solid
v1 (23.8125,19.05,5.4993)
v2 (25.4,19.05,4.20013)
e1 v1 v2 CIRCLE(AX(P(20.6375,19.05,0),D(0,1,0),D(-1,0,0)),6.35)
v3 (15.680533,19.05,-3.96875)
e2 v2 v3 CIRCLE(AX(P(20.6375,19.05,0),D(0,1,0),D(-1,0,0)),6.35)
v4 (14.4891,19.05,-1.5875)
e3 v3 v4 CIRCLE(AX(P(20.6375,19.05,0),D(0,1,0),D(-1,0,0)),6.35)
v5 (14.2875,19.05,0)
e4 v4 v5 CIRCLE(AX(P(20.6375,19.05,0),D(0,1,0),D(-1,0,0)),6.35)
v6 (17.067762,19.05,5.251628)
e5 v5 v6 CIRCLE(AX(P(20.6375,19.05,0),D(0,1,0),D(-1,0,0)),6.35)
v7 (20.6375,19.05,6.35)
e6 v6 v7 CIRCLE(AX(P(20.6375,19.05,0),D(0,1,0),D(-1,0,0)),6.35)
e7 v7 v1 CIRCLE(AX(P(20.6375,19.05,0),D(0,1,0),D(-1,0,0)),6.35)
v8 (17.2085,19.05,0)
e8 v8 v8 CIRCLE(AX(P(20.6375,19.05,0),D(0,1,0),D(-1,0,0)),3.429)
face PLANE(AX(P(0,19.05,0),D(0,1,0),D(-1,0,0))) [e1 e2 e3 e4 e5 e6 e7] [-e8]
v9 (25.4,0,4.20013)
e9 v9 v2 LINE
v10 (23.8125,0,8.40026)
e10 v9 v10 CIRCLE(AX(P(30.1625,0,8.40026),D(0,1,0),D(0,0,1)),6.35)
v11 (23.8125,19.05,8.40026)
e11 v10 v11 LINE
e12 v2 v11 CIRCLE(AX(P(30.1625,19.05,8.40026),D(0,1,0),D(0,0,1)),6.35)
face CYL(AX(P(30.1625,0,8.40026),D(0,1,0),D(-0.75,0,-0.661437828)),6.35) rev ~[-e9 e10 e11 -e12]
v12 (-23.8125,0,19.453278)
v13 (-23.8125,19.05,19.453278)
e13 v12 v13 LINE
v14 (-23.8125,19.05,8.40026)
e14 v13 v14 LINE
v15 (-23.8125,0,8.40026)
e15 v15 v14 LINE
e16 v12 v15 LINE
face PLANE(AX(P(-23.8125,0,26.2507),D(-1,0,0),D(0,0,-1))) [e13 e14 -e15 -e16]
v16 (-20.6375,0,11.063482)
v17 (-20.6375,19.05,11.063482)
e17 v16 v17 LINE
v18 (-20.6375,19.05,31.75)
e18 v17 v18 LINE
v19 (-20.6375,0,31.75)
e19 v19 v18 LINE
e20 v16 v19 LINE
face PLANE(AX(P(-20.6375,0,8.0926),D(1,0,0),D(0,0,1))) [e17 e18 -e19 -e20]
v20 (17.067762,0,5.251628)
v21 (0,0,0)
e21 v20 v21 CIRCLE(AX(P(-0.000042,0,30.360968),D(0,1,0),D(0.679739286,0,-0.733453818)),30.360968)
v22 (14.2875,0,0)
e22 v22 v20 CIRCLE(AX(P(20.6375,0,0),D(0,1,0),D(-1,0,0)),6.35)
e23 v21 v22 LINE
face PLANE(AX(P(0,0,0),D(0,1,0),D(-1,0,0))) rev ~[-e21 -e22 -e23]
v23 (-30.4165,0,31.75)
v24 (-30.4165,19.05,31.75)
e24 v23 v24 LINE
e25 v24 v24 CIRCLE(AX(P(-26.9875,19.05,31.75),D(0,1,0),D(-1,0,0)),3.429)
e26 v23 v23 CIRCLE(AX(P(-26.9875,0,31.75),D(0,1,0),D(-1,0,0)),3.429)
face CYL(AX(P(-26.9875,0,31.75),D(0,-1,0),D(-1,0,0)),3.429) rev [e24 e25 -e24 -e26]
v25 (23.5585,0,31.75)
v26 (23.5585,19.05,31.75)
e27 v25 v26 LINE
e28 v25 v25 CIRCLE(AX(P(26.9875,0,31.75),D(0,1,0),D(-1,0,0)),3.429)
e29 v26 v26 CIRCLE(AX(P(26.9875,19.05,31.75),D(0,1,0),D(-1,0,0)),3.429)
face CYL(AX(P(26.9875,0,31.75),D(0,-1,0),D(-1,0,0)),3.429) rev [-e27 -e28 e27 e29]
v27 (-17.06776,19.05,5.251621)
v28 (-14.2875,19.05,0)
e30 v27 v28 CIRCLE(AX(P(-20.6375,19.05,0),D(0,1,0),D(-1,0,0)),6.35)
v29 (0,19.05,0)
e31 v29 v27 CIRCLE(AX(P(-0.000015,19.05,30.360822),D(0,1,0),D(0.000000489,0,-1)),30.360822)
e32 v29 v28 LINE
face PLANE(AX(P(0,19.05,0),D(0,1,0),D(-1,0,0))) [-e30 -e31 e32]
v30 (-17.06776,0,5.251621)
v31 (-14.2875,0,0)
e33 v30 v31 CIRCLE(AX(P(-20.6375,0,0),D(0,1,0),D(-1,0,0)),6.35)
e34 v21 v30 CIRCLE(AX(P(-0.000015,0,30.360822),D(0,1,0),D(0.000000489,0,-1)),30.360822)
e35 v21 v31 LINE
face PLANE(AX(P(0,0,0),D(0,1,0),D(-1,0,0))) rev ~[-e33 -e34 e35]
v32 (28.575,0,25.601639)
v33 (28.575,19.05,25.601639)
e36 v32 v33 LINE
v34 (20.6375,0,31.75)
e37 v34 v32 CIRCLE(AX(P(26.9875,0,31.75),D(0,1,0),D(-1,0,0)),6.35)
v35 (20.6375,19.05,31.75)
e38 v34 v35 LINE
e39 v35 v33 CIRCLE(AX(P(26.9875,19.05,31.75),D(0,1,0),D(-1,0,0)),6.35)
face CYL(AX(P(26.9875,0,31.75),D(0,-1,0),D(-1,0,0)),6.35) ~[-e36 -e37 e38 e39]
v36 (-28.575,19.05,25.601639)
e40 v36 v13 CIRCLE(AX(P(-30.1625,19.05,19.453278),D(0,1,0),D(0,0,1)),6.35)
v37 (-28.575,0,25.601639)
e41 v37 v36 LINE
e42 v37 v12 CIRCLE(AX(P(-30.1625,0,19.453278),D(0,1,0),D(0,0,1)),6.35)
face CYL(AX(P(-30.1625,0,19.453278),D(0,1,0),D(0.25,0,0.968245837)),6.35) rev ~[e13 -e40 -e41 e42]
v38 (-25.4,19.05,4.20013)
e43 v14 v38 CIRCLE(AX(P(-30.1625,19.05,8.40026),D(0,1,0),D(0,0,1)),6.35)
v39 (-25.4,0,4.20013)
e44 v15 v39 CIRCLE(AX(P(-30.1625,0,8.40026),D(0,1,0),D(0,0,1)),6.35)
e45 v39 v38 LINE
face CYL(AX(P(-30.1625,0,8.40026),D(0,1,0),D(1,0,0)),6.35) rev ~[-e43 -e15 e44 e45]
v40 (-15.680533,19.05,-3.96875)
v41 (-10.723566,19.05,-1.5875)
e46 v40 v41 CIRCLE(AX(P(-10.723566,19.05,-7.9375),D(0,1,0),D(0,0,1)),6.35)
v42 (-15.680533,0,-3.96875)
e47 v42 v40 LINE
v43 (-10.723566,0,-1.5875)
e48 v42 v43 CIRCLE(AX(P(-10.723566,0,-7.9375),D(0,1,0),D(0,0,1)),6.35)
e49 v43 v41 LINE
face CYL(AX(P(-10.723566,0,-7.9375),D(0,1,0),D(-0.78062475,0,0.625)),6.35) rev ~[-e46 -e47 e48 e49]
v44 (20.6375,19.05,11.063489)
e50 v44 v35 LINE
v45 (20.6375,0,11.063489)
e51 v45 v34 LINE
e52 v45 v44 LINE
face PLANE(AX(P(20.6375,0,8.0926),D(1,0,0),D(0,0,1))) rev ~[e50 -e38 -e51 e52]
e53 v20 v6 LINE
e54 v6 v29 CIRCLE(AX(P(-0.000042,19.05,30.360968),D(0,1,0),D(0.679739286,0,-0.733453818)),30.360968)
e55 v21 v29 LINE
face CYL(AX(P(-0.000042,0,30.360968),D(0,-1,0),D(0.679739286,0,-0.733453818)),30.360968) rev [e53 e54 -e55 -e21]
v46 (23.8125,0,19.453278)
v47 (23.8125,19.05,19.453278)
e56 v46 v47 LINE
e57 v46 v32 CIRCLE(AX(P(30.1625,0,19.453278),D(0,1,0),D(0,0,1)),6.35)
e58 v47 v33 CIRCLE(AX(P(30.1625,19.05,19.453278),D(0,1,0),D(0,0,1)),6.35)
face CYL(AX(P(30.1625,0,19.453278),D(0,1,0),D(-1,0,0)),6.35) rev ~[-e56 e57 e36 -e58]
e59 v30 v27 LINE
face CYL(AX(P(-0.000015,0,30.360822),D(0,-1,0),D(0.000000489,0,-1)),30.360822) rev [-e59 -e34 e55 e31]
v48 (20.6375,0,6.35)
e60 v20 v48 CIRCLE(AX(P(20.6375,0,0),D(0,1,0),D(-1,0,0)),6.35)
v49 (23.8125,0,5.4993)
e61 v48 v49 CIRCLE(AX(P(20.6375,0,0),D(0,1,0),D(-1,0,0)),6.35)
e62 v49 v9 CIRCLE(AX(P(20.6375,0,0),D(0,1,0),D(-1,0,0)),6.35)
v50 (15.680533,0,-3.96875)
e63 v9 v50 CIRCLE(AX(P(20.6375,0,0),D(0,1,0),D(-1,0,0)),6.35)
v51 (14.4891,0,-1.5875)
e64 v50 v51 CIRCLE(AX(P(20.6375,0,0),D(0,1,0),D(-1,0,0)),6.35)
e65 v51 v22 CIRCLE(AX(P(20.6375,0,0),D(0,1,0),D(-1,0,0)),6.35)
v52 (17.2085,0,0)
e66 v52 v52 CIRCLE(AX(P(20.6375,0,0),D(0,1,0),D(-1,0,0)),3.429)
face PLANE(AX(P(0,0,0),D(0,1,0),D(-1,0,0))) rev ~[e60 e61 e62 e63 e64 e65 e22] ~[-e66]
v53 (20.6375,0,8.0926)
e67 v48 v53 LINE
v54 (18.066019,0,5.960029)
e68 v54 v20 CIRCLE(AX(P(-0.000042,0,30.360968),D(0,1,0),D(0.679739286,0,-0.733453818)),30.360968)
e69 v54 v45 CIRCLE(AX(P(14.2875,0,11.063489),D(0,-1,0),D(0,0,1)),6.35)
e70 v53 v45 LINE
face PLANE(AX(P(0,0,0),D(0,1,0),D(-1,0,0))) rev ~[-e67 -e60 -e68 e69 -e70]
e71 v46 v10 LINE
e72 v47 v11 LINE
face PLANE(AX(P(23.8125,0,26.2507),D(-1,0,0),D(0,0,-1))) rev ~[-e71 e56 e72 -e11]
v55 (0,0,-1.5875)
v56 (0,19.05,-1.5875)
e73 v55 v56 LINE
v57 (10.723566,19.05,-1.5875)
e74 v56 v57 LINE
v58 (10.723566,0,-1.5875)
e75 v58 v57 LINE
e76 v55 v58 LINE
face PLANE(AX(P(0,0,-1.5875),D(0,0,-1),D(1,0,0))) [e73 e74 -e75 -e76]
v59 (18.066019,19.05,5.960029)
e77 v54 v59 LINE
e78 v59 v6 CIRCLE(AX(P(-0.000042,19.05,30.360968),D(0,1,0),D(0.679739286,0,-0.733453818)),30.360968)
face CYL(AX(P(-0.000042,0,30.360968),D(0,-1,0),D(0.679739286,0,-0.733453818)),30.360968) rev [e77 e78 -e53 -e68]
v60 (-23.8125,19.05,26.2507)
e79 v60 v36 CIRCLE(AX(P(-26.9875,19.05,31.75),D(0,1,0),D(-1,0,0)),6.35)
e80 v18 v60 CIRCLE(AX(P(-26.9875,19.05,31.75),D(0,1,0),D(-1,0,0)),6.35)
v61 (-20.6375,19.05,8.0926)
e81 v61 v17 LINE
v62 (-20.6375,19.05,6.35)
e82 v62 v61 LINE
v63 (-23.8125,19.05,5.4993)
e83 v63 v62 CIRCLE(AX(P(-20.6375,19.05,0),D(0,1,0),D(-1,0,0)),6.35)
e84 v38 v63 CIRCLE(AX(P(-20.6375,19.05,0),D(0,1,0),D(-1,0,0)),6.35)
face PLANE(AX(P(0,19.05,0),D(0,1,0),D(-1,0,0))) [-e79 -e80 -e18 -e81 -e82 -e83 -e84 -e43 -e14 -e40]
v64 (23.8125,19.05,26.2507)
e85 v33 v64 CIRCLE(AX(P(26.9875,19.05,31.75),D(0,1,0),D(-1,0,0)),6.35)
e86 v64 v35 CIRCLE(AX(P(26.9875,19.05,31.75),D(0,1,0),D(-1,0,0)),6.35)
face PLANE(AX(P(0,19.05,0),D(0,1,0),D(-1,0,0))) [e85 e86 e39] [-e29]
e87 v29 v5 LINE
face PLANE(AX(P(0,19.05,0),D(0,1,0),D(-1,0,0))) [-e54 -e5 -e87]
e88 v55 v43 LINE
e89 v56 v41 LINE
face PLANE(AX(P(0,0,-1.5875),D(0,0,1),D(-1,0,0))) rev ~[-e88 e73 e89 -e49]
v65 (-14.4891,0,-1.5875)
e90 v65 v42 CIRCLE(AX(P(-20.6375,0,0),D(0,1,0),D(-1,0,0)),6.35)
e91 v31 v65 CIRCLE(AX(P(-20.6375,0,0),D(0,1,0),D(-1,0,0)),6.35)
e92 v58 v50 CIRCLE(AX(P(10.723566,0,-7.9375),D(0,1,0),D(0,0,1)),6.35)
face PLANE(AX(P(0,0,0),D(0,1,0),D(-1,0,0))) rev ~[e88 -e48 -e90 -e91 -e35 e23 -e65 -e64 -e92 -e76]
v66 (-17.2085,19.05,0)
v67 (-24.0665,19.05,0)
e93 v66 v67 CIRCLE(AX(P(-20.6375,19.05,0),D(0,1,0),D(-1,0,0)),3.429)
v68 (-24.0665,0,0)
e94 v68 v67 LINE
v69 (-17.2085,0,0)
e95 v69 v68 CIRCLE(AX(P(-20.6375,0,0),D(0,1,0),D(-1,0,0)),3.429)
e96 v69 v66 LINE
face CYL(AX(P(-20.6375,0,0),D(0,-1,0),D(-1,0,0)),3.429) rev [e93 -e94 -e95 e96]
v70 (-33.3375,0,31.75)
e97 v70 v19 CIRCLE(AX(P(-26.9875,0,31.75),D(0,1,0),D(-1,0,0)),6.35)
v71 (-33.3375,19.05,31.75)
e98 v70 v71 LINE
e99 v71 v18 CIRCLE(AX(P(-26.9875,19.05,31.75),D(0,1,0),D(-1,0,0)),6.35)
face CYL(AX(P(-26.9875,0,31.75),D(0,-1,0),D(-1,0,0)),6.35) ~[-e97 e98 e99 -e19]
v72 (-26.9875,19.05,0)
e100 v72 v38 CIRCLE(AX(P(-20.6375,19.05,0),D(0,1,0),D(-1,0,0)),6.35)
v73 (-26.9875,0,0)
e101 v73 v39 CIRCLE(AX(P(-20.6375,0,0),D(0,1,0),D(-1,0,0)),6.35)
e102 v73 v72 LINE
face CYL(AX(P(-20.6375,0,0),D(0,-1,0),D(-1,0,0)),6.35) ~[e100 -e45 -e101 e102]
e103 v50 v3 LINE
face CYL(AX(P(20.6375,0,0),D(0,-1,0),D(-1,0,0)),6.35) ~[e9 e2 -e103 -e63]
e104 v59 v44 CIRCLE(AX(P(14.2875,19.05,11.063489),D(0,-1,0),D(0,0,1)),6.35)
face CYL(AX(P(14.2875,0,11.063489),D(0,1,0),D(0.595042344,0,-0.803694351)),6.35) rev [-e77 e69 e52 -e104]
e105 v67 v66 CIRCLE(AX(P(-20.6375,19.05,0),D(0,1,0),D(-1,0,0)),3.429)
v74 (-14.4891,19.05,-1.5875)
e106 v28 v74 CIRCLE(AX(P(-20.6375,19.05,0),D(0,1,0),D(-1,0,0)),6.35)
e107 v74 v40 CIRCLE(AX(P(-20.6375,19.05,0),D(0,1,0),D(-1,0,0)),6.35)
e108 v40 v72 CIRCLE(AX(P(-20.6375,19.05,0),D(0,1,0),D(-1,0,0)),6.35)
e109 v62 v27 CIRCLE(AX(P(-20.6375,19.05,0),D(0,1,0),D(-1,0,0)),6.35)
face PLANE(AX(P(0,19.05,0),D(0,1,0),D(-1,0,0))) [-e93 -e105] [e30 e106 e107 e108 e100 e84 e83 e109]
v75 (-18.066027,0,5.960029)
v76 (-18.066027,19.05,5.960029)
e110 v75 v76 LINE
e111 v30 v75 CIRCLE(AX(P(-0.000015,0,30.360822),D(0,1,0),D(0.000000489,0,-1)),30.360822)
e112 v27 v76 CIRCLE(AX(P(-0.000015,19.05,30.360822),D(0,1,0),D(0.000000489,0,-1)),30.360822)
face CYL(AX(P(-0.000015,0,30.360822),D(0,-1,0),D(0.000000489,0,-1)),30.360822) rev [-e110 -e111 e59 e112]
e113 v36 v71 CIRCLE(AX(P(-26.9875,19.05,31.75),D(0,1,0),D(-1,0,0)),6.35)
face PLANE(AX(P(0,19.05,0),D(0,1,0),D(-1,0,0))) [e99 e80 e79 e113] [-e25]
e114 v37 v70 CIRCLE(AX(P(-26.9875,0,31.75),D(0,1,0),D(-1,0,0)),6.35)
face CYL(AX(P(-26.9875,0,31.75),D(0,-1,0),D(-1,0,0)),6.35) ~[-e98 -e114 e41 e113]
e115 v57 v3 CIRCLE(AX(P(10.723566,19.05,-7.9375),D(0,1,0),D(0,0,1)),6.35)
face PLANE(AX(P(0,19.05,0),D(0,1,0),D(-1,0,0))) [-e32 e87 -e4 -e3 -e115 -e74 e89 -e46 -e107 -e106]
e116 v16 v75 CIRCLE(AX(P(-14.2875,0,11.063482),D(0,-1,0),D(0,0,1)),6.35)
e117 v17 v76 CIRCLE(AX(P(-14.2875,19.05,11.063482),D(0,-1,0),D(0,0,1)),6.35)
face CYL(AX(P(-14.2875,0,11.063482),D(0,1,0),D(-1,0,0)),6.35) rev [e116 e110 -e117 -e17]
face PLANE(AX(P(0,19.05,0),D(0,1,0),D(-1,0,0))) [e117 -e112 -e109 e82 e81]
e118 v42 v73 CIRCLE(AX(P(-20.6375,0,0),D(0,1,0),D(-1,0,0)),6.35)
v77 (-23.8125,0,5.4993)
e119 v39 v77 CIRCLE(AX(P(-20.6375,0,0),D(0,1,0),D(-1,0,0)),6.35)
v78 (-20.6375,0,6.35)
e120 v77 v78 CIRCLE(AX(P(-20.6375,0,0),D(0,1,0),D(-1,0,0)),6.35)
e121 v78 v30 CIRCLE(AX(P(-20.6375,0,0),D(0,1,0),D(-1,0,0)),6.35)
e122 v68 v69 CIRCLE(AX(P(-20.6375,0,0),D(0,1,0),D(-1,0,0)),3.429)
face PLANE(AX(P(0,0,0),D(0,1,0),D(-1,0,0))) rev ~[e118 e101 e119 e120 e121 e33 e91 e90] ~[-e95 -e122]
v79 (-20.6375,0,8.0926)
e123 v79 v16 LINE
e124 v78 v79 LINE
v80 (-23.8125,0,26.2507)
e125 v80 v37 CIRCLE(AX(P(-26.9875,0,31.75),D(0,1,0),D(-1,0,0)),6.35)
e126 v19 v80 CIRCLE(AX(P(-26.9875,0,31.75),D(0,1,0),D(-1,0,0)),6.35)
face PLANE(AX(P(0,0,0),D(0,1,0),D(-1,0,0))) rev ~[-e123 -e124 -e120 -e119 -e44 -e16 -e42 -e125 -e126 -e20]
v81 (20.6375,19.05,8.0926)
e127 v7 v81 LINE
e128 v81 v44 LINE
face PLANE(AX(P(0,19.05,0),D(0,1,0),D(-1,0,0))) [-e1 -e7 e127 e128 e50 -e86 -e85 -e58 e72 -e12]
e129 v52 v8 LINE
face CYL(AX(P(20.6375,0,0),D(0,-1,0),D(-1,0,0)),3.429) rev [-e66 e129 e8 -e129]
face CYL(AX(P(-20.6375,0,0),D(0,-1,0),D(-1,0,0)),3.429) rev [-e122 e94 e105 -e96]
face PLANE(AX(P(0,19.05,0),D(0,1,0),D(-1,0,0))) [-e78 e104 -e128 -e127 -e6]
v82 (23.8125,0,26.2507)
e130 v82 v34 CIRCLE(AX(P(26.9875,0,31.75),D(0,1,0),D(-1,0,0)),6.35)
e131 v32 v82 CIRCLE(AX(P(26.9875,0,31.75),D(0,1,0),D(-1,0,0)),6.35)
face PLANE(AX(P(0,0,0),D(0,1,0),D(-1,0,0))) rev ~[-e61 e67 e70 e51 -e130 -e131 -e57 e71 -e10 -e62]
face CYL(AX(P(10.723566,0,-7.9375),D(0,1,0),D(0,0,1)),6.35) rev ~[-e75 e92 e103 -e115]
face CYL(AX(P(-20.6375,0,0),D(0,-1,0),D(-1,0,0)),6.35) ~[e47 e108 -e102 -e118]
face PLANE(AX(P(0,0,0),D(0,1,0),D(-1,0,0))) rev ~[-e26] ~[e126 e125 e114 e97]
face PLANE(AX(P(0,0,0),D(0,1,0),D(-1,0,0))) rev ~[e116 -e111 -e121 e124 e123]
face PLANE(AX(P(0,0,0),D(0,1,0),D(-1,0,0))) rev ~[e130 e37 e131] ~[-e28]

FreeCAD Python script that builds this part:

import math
import FreeCAD as App
import Part
import Sketcher
from FreeCAD import Vector
Q = App.Units.Quantity


def edges_at(feature, points):
    """Names of the edges that pass closest to the given points."""
    edges = feature.Shape.Edges
    near = lambda p: min(range(len(edges)), key=lambda i: edges[i].distToShape(Part.Vertex(*p))[0])
    return sorted({f"Edge{near(p) + 1}" for p in points})

doc = App.newDocument("Part")
body = doc.addObject("PartDesign::Body", "Body")

# Sketch on XZ plane
sketch1 = body.newObject("Sketcher::SketchObject", "Sketch")
sketch1.AttachmentSupport = (doc.getObject("XZ_Plane"), [""])
sketch1.MapMode = "FlatFace"
sketch1.addGeometry([
    Part.ArcOfCircle(Part.Circle(Vector(-26.9875, 31.75, 0), Vector(0, 0, 1), 6.35), math.radians(0), math.radians(299.999825)),  # 0
    Part.LineSegment(Vector(-20.6375, 31.75, 0), Vector(-20.6375, 8.0926, 0)),  # 1
    Part.ArcOfCircle(Part.Circle(Vector(0, 30.3609, 0), Vector(0, 0, 1), 30.360889), math.radians(-132.823301), math.radians(-90)),  # 2
    Part.ArcOfCircle(Part.Circle(Vector(0, 30.3609, 0), Vector(0, 0, 1), 30.3609), math.radians(-90), math.radians(-47.176699)),  # 3
    Part.LineSegment(Vector(20.6375, 8.0926, 0), Vector(20.6375, 31.75, 0)),  # 4
    Part.ArcOfCircle(Part.Circle(Vector(26.9875, 31.75, 0), Vector(0, 0, 1), 6.35), math.radians(-119.999825), math.radians(180)),  # 5
    Part.LineSegment(Vector(23.8125, 26.2507, 0), Vector(23.8125, 5.4993, 0)),  # 6
    Part.ArcOfCircle(Part.Circle(Vector(20.6375, 0, 0), Vector(0, 0, 1), 6.35), math.radians(-165.522576), math.radians(60.000175)),  # 7
    Part.LineSegment(Vector(14.4891, -1.5875, 0), Vector(-14.4891, -1.5875, 0)),  # 8
    Part.ArcOfCircle(Part.Circle(Vector(-20.6375, 0, 0), Vector(0, 0, 1), 6.35), math.radians(119.999825), math.radians(345.522576)),  # 9
    Part.LineSegment(Vector(-23.8125, 5.4993, 0), Vector(-23.8125, 26.2507, 0)),  # 10
    Part.Circle(Vector(-26.9875, 31.75, 0), Vector(0, 0, 1), 3.429),  # 11
    Part.Circle(Vector(-20.6375, 0, 0), Vector(0, 0, 1), 3.429),  # 12
    Part.Circle(Vector(20.6375, 0, 0), Vector(0, 0, 1), 3.429),  # 13
    Part.Circle(Vector(26.9875, 31.75, 0), Vector(0, 0, 1), 3.429),  # 14
], False)
sketch1.addConstraint([
    Sketcher.Constraint("Tangent", 0, 1, 1, 1),
    Sketcher.Constraint("Coincident", 1, 2, 2, 1),
    Sketcher.Constraint("Tangent", 2, 2, 3, 1),
    Sketcher.Constraint("Coincident", 3, 2, 4, 1),
    Sketcher.Constraint("Tangent", 4, 2, 5, 2),
    Sketcher.Constraint("Coincident", 5, 1, 6, 1),
    Sketcher.Constraint("Coincident", 6, 2, 7, 2),
    Sketcher.Constraint("Coincident", 7, 1, 8, 1),
    Sketcher.Constraint("Coincident", 8, 2, 9, 2),
    Sketcher.Constraint("Coincident", 9, 1, 10, 1),
    Sketcher.Constraint("Coincident", 10, 2, 0, 2),
    Sketcher.Constraint("Vertical", 1),
    Sketcher.Constraint("Vertical", 4),
    Sketcher.Constraint("Vertical", 6),
    Sketcher.Constraint("Horizontal", 8),
    Sketcher.Constraint("Vertical", 10),
    Sketcher.Constraint("Coincident", 2, 2, -1, 1),
    Sketcher.Constraint("Coincident", 11, 3, 0, 3),
    Sketcher.Constraint("Coincident", 12, 3, 9, 3),
    Sketcher.Constraint("Coincident", 13, 3, 7, 3),
    Sketcher.Constraint("Coincident", 14, 3, 5, 3),
    Sketcher.Constraint("Equal", 2, 3),
    Sketcher.Constraint("Equal", 0, 5),
    Sketcher.Constraint("Equal", 5, 7),
    Sketcher.Constraint("Equal", 7, 9),
    Sketcher.Constraint("Equal", 11, 12),
    Sketcher.Constraint("Equal", 12, 13),
    Sketcher.Constraint("Equal", 13, 14),
    Sketcher.Constraint("Symmetric", 7, 3, 9, 3, -1, 1),
    Sketcher.Constraint("Symmetric", 0, 3, 5, 3, -2),
    Sketcher.Constraint("Symmetric", 6, 2, 9, 1, -2),
    Sketcher.Constraint("PointOnObject", 2, 3, -2),
    Sketcher.Constraint("Vertical", 12, 3, 0, 1),
    Sketcher.Constraint("Diameter", 11, Q("0.27 in")),
    Sketcher.Constraint("Radius", 0, Q("0.25 in")),
    Sketcher.Constraint("DistanceY", -1, 1, 0, 3, Q("1.25 in")),
    Sketcher.Constraint("DistanceX", 0, 3, -1, 1, Q("1.0625 in")),
    Sketcher.Constraint("DistanceY", 7, 1, -1, 1, Q("0.0625 in")),
    Sketcher.Constraint("DistanceX", 5, 1, 5, 3, Q("0.125 in")),
    Sketcher.Constraint("Radius", 2, Q("1.1953 in")),
])
pad1 = body.newObject("PartDesign::Pad", "Pad")
pad1.Profile = sketch1
pad1.Length = Q("0.75 in")
pad1.Reversed = True
doc.recompute()

fillet = body.newObject("PartDesign::Fillet", "Fillet")
fillet.Base = (pad1, edges_at(pad1, [
    (-20.637, 9.525, 8.093),
    (20.637, 9.525, 8.093),
    (-14.489, 9.525, -1.587),
    (14.489, 9.525, -1.587),
    (23.812, 9.525, 5.499),
    (23.812, 9.525, 26.251),
    (-23.812, 9.525, 5.499),
    (-23.812, 9.525, 26.251),
]))
fillet.Radius = Q("0.25 in")

doc.recompute()
